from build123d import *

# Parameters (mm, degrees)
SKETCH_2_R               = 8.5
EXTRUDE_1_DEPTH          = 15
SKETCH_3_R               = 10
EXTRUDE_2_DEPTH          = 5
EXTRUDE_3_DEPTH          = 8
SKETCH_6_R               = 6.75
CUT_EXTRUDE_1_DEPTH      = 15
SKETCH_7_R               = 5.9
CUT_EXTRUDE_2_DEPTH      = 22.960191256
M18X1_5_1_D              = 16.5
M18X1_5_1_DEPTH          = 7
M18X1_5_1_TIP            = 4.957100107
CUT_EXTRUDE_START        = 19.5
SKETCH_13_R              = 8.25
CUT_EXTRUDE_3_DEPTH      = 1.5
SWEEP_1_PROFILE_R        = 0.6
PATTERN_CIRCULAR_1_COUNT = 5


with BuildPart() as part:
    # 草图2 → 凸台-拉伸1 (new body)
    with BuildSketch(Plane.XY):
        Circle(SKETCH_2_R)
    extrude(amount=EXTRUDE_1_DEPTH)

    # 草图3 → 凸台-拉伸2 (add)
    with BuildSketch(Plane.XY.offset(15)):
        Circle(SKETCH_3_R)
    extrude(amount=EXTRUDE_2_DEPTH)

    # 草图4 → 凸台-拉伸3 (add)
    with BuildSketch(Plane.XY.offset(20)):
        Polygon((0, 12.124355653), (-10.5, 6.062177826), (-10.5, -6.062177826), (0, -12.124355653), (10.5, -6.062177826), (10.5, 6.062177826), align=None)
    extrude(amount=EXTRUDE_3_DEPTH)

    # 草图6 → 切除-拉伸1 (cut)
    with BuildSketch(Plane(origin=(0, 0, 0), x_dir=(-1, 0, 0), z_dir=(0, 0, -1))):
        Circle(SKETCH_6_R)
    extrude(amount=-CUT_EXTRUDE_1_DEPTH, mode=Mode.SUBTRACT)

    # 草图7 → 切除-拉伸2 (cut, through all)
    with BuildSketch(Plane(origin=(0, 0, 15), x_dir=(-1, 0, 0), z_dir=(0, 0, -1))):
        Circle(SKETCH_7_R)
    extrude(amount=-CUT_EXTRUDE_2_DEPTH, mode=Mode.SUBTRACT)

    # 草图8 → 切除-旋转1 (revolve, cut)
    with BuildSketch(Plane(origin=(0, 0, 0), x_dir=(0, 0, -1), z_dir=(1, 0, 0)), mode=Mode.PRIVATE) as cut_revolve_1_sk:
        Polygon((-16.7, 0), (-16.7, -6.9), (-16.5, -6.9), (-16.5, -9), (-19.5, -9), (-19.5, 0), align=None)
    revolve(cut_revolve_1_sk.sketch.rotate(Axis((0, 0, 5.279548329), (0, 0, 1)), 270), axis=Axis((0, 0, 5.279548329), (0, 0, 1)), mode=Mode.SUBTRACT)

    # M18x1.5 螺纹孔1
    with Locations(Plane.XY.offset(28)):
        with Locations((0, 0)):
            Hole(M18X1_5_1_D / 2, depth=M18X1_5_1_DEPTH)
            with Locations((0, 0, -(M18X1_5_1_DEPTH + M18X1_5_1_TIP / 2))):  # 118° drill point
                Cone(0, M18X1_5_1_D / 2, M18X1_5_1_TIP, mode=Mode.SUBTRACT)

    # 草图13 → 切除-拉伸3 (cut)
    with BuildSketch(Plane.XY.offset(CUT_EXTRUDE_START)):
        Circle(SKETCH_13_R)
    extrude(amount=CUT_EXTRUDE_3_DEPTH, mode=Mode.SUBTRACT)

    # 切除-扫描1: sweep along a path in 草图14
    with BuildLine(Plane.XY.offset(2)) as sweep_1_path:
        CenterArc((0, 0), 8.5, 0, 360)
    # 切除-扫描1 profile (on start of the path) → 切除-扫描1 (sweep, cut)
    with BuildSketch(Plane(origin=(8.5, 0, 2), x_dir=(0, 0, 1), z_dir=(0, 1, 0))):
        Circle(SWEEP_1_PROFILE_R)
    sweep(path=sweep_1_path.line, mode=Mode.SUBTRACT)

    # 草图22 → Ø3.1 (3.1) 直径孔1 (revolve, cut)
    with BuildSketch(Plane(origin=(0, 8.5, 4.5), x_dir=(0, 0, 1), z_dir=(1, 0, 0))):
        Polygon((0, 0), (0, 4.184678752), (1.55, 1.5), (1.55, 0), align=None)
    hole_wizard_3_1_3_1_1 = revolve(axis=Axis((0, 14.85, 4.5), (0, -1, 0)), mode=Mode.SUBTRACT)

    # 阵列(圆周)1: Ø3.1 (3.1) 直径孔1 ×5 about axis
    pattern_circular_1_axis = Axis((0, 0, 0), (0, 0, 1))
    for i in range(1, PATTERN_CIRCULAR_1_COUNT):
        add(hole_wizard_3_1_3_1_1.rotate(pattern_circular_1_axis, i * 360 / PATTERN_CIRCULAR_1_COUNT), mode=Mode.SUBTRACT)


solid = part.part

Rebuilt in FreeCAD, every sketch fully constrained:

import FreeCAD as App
import Part
import Sketcher
from FreeCAD import Vector
Q = App.Units.Quantity


def add_polygon(sketch, points):
    """Adds a closed chain of lines whose ends are joined by coincident constraints."""
    first, n = sketch.GeometryCount, len(points)
    for a, b in zip(points, points[1:] + points[:1]):
        sketch.addGeometry(Part.LineSegment(App.Vector(*a, 0), App.Vector(*b, 0)), False)
    for i in range(n):
        sketch.addConstraint(Sketcher.Constraint("Coincident", first + i, 2, first + (i + 1) % n, 1))

doc = App.newDocument("Part")
params = doc.addObject("Spreadsheet::Sheet", "Params")
for row, (alias, value) in enumerate([
    ("sketch1_diameter", "17 mm"),
    ("pad1_length", "15 mm"),
    ("sketch2_diameter", "20 mm"),
    ("pad2_length", "5 mm"),
    ("pad3_length", "8 mm"),
    ("sketch4_diameter", "13.5 mm"),
    ("pocket1_length", "15 mm"),
    ("sketch5_diameter", "11.8 mm"),
    ("sketch6_width", "9 mm"),
    ("sketch6_height", "3 mm"),
    ("sketch6_width2", "6.9 mm"),
    ("sketch6_height2", "2.8 mm"),
    ("groove_angle", "360 deg"),
    ("sketch7_diameter", "16.5 mm"),
    ("hole_diameter", "16.5 mm"),
    ("hole_depth", "7 mm"),
    ("sketch8_diameter", "16.5 mm"),
    ("pocket3_length", "1.5 mm"),
    ("sketch9_diameter", "1.2 mm"),
    ("sketch10_diameter", "17 mm"),
    ("sketch11_width", "1.5 mm"),
    ("sketch11_length", "3.1 mm"),
    ("groove2_angle", "360 deg"),
], start=1):
    params.set(f"A{row}", alias)
    params.set(f"B{row}", "=" + value)
    params.setAlias(f"B{row}", alias)

body = doc.addObject("PartDesign::Body", "Body")

sketch1 = doc.addObject("Sketcher::SketchObject", "Sketch")
body.addObject(sketch1)
sketch1.AttachmentSupport = (doc.XY_Plane, [""])
sketch1.MapMode = "FlatFace"
sketch1.addGeometry(Part.Circle(Vector(0, 0, 0), Vector(0, 0, 1), 8), False)
sketch1.addConstraint(Sketcher.Constraint("Coincident", 0, 3, -1, 1))
sketch1.addConstraint(Sketcher.Constraint("Diameter", 0, 17.0))
sketch1.setExpression("Constraints[1]", "Params.sketch1_diameter")
pad1 = doc.addObject("PartDesign::Pad", "Pad")
body.addObject(pad1)
pad1.Profile = sketch1
pad1.setExpression("Length", "Params.pad1_length")

sketch2 = doc.addObject("Sketcher::SketchObject", "Sketch001")
body.addObject(sketch2)
sketch2.AttachmentSupport = (doc.XY_Plane, [""])
sketch2.MapMode = "FlatFace"
sketch2.AttachmentOffset = App.Placement(Vector(0, 0, 15), App.Rotation())
sketch2.addGeometry(Part.Circle(Vector(0, 0, 0), Vector(0, 0, 1), 10), False)
sketch2.addConstraint(Sketcher.Constraint("Coincident", 0, 3, -1, 1))
sketch2.addConstraint(Sketcher.Constraint("Diameter", 0, 20.0))
sketch2.setExpression("Constraints[1]", "Params.sketch2_diameter")
pad2 = doc.addObject("PartDesign::Pad", "Pad001")
body.addObject(pad2)
pad2.Profile = sketch2
pad2.setExpression("Length", "Params.pad2_length")

sketch3 = doc.addObject("Sketcher::SketchObject", "Sketch002")
body.addObject(sketch3)
sketch3.AttachmentSupport = (doc.XY_Plane, [""])
sketch3.MapMode = "FlatFace"
sketch3.AttachmentOffset = App.Placement(Vector(0, 0, 20), App.Rotation())
add_polygon(sketch3, [(0, 12), (-10, 6), (-10, -6), (0, -12), (10, -6), (10, 6)])
sketch3.addConstraint(Sketcher.Constraint("Vertical", 1))
sketch3.addConstraint(Sketcher.Constraint("Vertical", 4))
sketch3.addConstraint(Sketcher.Constraint("Symmetric", 0, 2, 3, 2, -1, 1))
sketch3.addConstraint(Sketcher.Constraint("Symmetric", 2, 2, 5, 2, -1, 1))
sketch3.addConstraint(Sketcher.Constraint("PointOnObject", 2, 2, -2))
sketch3.addConstraint(Sketcher.Constraint("Parallel", 2, 5))
sketch3.addConstraint(Sketcher.Constraint("Horizontal", 1, 2, 3, 2))
sketch3.addConstraint(Sketcher.Constraint("Angle", 0, Q("-150 deg")))
sketch3.addConstraint(Sketcher.Constraint("DistanceX", 1, 2, 3, 2, 21.0))
sketch3.addConstraint(Sketcher.Constraint("DistanceY", 1, 2, 1, 1, 12.124356))
pad3 = doc.addObject("PartDesign::Pad", "Pad002")
body.addObject(pad3)
pad3.Profile = sketch3
pad3.setExpression("Length", "Params.pad3_length")

sketch4 = doc.addObject("Sketcher::SketchObject", "Sketch003")
body.addObject(sketch4)
sketch4.AttachmentSupport = (doc.XY_Plane, [""])
sketch4.MapMode = "FlatFace"
sketch4.addGeometry(Part.Circle(Vector(0, 0, 0), Vector(0, 0, 1), 7), False)
sketch4.addConstraint(Sketcher.Constraint("Coincident", 0, 3, -1, 1))
sketch4.addConstraint(Sketcher.Constraint("Diameter", 0, 13.5))
sketch4.setExpression("Constraints[1]", "Params.sketch4_diameter")
pocket1 = doc.addObject("PartDesign::Pocket", "Pocket")
body.addObject(pocket1)
pocket1.Profile = sketch4
pocket1.setExpression("Length", "Params.pocket1_length")
pocket1.Reversed = True

sketch5 = doc.addObject("Sketcher::SketchObject", "Sketch004")
body.addObject(sketch5)
sketch5.AttachmentSupport = (doc.XY_Plane, [""])
sketch5.MapMode = "FlatFace"
sketch5.AttachmentOffset = App.Placement(Vector(0, 0, 15), App.Rotation())
sketch5.addGeometry(Part.Circle(Vector(0, 0, 0), Vector(0, 0, 1), 6), False)
sketch5.addConstraint(Sketcher.Constraint("Coincident", 0, 3, -1, 1))
sketch5.addConstraint(Sketcher.Constraint("Diameter", 0, 11.8))
sketch5.setExpression("Constraints[1]", "Params.sketch5_diameter")
pocket2 = doc.addObject("PartDesign::Pocket", "Pocket001")
body.addObject(pocket2)
pocket2.Profile = sketch5
pocket2.Type = "ThroughAll"
pocket2.Reversed = True

sketch6 = doc.addObject("Sketcher::SketchObject", "Sketch005")
body.addObject(sketch6)
sketch6.AttachmentSupport = (doc.YZ_Plane, [""])
sketch6.MapMode = "FlatFace"
add_polygon(sketch6, [(-6.9, 16.7), (0, 16.7), (0, 19.5), (-9, 19.5), (-9, 16.5), (-6.9, 16.5)])
sketch6.addConstraint(Sketcher.Constraint("Horizontal", 0))
sketch6.addConstraint(Sketcher.Constraint("Vertical", 1))
sketch6.addConstraint(Sketcher.Constraint("Horizontal", 2))
sketch6.addConstraint(Sketcher.Constraint("Vertical", 3))
sketch6.addConstraint(Sketcher.Constraint("Horizontal", 4))
sketch6.addConstraint(Sketcher.Constraint("Vertical", 5))
sketch6.addConstraint(Sketcher.Constraint("PointOnObject", 0, 2, -2))
sketch6.addConstraint(Sketcher.Constraint("DistanceX", 2, 2, 2, 1, 9.0))
sketch6.addConstraint(Sketcher.Constraint("DistanceY", 3, 2, 3, 1, 3.0))
sketch6.addConstraint(Sketcher.Constraint("DistanceX", 0, 1, 0, 2, 6.9))
sketch6.addConstraint(Sketcher.Constraint("DistanceY", 1, 1, 1, 2, 2.8))
sketch6.addConstraint(Sketcher.Constraint("DistanceY", -1, 1, 0, 2, 16.7))
sketch6.setExpression("Constraints[13]", "Params.sketch6_width")
sketch6.setExpression("Constraints[14]", "Params.sketch6_height")
sketch6.setExpression("Constraints[15]", "Params.sketch6_width2")
sketch6.setExpression("Constraints[16]", "Params.sketch6_height2")
groove = doc.addObject("PartDesign::Groove", "Groove")
body.addObject(groove)
groove.Profile = sketch6
groove.ReferenceAxis = (sketch6, ["V_Axis"])
groove.setExpression("Angle", "Params.groove_angle")

sketch7 = doc.addObject("Sketcher::SketchObject", "Sketch006")
body.addObject(sketch7)
sketch7.AttachmentSupport = (doc.XY_Plane, [""])
sketch7.MapMode = "FlatFace"
sketch7.AttachmentOffset = App.Placement(Vector(0, 0, 28), App.Rotation())
sketch7.addGeometry(Part.Circle(Vector(0, 0, 0), Vector(0, 0, 1), 8), False)
sketch7.addConstraint(Sketcher.Constraint("Coincident", 0, 3, -1, 1))
sketch7.addConstraint(Sketcher.Constraint("Diameter", 0, 16.5))
sketch7.setExpression("Constraints[1]", "Params.sketch7_diameter")
doc.recompute()
hole = doc.addObject("PartDesign::Hole", "Hole")
body.addObject(hole)
hole.Profile = sketch7
hole.ThreadType = "None"
hole.setExpression("Diameter", "Params.hole_diameter")
hole.DepthType = "Dimension"
hole.setExpression("Depth", "Params.hole_depth")
hole.DrillPoint = "Angled"
hole.DrillPointAngle = 118

sketch8 = doc.addObject("Sketcher::SketchObject", "Sketch007")
body.addObject(sketch8)
sketch8.AttachmentSupport = (doc.XY_Plane, [""])
sketch8.MapMode = "FlatFace"
sketch8.AttachmentOffset = App.Placement(Vector(0, 0, 19.5), App.Rotation())
sketch8.addGeometry(Part.Circle(Vector(0, 0, 0), Vector(0, 0, 1), 8), False)
sketch8.addConstraint(Sketcher.Constraint("Coincident", 0, 3, -1, 1))
sketch8.addConstraint(Sketcher.Constraint("Diameter", 0, 16.5))
sketch8.setExpression("Constraints[1]", "Params.sketch8_diameter")
pocket3 = doc.addObject("PartDesign::Pocket", "Pocket002")
body.addObject(pocket3)
pocket3.Profile = sketch8
pocket3.setExpression("Length", "Params.pocket3_length")
pocket3.Reversed = True

sketch9 = doc.addObject("Sketcher::SketchObject", "Sketch008")
body.addObject(sketch9)
sketch9.AttachmentSupport = (doc.XZ_Plane, [""])
sketch9.MapMode = "FlatFace"
sketch9.addGeometry(Part.Circle(Vector(8.5, 2, 0), Vector(0, 0, 1), 0.6), False)
sketch9.addConstraint(Sketcher.Constraint("Diameter", 0, 1.2))
sketch9.addConstraint(Sketcher.Constraint("DistanceY", -1, 1, 0, 3, 2.0))
sketch9.addConstraint(Sketcher.Constraint("DistanceX", -1, 1, 0, 3, 8.5))
sketch9.setExpression("Constraints[0]", "Params.sketch9_diameter")

sketch10 = doc.addObject("Sketcher::SketchObject", "Sketch009")
body.addObject(sketch10)
sketch10.AttachmentSupport = (doc.XY_Plane, [""])
sketch10.MapMode = "FlatFace"
sketch10.AttachmentOffset = App.Placement(Vector(0, 0, 2), App.Rotation())
sketch10.addGeometry(Part.Circle(Vector(0, 0, 0), Vector(0, 0, 1), 8), False)
sketch10.addConstraint(Sketcher.Constraint("Coincident", 0, 3, -1, 1))
sketch10.addConstraint(Sketcher.Constraint("Diameter", 0, 17.0))
sketch10.setExpression("Constraints[1]", "Params.sketch10_diameter")
doc.recompute()

subtractivepipe = doc.addObject("PartDesign::SubtractivePipe", "SubtractivePipe")
body.addObject(subtractivepipe)
subtractivepipe.Profile = sketch9
subtractivepipe.Spine = (sketch10, ["Edge1"])

sketch11 = doc.addObject("Sketcher::SketchObject", "Sketch010")
body.addObject(sketch11)
sketch11.AttachmentSupport = (doc.YZ_Plane, [""])
sketch11.MapMode = "FlatFace"
add_polygon(sketch11, [(4.3, 4.5), (8.5, 4.5), (8.5, 6), (7, 6)])
sketch11.addGeometry(Part.LineSegment(Vector(8.5, 4.5, 0), Vector(4.3, 4.5, 0)), True)
sketch11.addConstraint(Sketcher.Constraint("Horizontal", 0))
sketch11.addConstraint(Sketcher.Constraint("Vertical", 1))
sketch11.addConstraint(Sketcher.Constraint("Horizontal", 2))
sketch11.addConstraint(Sketcher.Constraint("Horizontal", 4))
sketch11.addConstraint(Sketcher.Constraint("Coincident", 4, 1, 0, 2))
sketch11.addConstraint(Sketcher.Constraint("Equal", 0, 4))
sketch11.addConstraint(Sketcher.Constraint("Angle", 3, Q("-150 deg")))
sketch11.addConstraint(Sketcher.Constraint("DistanceX", 2, 2, 2, 1, 1.5))
sketch11.addConstraint(Sketcher.Constraint("DistanceX", -1, 1, 2, 2, 7.0))
sketch11.addConstraint(Sketcher.Constraint("Distance", 3, 3.1))
sketch11.addConstraint(Sketcher.Constraint("DistanceY", -1, 1, 0, 2, 4.5))
sketch11.setExpression("Constraints[11]", "Params.sketch11_width")
sketch11.setExpression("Constraints[13]", "Params.sketch11_length")
groove2 = doc.addObject("PartDesign::Groove", "Groove001")
body.addObject(groove2)
groove2.Profile = sketch11
groove2.ReferenceAxis = (sketch11, ["Axis0"])
groove2.setExpression("Angle", "Params.groove2_angle")
doc.recompute()

polarpattern = doc.addObject("PartDesign::PolarPattern", "PolarPattern")
body.addObject(polarpattern)
polarpattern.Originals = [groove2]
polarpattern.Axis = (doc.Z_Axis, [""])
polarpattern.Angle = 360
polarpattern.Occurrences = 5
body.Tip = polarpattern

doc.recompute()
